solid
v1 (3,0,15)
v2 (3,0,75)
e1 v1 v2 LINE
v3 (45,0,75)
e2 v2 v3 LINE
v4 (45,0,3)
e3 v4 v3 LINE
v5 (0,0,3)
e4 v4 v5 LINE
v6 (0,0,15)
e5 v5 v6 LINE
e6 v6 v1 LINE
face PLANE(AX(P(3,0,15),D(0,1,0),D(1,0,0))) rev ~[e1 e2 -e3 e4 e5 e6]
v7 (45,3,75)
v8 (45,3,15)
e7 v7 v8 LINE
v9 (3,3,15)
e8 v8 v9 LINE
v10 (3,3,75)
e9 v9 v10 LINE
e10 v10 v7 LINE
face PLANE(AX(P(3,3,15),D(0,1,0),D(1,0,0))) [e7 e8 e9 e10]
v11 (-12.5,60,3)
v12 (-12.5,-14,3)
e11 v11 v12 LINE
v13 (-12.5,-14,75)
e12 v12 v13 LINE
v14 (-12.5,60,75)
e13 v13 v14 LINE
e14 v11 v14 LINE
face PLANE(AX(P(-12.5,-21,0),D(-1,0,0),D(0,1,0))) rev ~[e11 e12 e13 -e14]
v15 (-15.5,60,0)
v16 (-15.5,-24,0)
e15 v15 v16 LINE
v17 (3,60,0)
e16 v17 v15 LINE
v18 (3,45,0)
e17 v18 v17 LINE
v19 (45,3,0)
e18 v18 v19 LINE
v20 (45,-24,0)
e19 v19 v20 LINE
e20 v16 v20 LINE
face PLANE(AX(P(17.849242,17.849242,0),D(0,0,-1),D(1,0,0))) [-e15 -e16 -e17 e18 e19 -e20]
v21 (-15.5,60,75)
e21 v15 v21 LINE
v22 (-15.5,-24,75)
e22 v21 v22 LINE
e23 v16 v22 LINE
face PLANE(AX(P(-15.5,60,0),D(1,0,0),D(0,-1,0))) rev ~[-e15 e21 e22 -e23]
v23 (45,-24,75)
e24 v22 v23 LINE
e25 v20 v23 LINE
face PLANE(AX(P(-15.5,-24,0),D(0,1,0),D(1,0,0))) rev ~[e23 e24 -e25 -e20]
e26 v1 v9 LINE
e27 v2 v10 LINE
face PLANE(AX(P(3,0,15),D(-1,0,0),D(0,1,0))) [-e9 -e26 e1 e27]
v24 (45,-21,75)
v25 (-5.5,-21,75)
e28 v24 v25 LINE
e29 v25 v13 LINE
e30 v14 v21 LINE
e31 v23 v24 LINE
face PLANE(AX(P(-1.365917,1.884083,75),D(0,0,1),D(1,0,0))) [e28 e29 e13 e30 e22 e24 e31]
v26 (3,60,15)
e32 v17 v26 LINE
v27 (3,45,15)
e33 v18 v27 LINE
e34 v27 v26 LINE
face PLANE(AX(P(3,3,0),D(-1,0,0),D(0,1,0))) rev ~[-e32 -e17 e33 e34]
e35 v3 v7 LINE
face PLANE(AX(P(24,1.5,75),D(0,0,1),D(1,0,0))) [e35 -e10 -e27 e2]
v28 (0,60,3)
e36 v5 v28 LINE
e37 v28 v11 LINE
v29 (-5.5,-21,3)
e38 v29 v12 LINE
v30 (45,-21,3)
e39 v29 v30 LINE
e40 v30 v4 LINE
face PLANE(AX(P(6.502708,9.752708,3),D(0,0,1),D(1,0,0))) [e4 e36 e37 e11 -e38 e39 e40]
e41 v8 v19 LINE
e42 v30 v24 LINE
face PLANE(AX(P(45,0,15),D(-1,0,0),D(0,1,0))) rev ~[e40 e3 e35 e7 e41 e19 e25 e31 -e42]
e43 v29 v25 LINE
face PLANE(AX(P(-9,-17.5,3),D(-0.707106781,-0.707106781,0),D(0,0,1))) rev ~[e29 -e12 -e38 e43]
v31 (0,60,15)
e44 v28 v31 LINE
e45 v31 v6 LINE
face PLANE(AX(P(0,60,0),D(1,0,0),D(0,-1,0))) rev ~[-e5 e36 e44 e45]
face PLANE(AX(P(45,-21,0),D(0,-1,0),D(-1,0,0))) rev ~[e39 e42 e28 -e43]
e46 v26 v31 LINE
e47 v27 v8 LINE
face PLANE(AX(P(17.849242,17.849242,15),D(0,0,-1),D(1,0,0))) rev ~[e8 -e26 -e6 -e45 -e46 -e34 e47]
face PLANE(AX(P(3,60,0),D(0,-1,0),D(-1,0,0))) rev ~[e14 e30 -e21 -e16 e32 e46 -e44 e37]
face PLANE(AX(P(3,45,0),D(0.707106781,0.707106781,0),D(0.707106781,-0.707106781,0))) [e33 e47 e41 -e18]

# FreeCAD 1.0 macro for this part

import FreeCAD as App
import Part
import Sketcher
from FreeCAD import Vector
Q = App.Units.Quantity


def edges_at(feature, points):
    """Names of the edges that pass closest to the given points."""
    edges = feature.Shape.Edges
    near = lambda p: min(range(len(edges)), key=lambda i: edges[i].distToShape(Part.Vertex(*p))[0])
    return sorted({f"Edge{near(p) + 1}" for p in points})


def add_polygon(sketch, points):
    """Adds a closed chain of lines whose ends are joined by coincident constraints."""
    first, n = sketch.GeometryCount, len(points)
    for a, b in zip(points, points[1:] + points[:1]):
        sketch.addGeometry(Part.LineSegment(App.Vector(*a, 0), App.Vector(*b, 0)), False)
    for i in range(n):
        sketch.addConstraint(Sketcher.Constraint("Coincident", first + i, 2, first + (i + 1) % n, 1))

doc = App.newDocument("Part")
body = doc.addObject("PartDesign::Body", "Body")

sketch1 = doc.addObject("Sketcher::SketchObject", "Sketch")
body.addObject(sketch1)
sketch1.AttachmentSupport = (doc.XY_Plane, [""])
sketch1.MapMode = "FlatFace"
add_polygon(sketch1, [(0, 60), (-12, 60), (-12, -21), (45, -21), (45, 0), (0, 0)])
sketch1.addConstraint([
    Sketcher.Constraint("Horizontal", 0),
    Sketcher.Constraint("Vertical", 1),
    Sketcher.Constraint("Horizontal", 2),
    Sketcher.Constraint("Vertical", 3),
    Sketcher.Constraint("Horizontal", 4),
    Sketcher.Constraint("Vertical", 5),
    Sketcher.Constraint("Coincident", 4, 2, -1, 1),
    Sketcher.Constraint("DistanceX", 4, 2, 4, 1, Q("45 mm")),
    Sketcher.Constraint("DistanceY", 1, 2, 1, 1, Q("81 mm")),
    Sketcher.Constraint("DistanceY", 3, 1, 3, 2, Q("21 mm")),
    Sketcher.Constraint("DistanceX", 0, 2, 0, 1, Q("12.5 mm")),
])
pad1 = doc.addObject("PartDesign::Pad", "Pad")
body.addObject(pad1)
pad1.Profile = sketch1
pad1.Length = 3

sketch2 = doc.addObject("Sketcher::SketchObject", "Sketch001")
body.addObject(sketch2)
sketch2.AttachmentSupport = (doc.XY_Plane, [""])
sketch2.MapMode = "FlatFace"
add_polygon(sketch2, [(-12.5, -21), (-12.5, 60), (-15.5, 60), (-15.5, -24), (45, -24), (45, -21)])
sketch2.addConstraint([
    Sketcher.Constraint("Vertical", 0),
    Sketcher.Constraint("Horizontal", 1),
    Sketcher.Constraint("Vertical", 2),
    Sketcher.Constraint("Horizontal", 3),
    Sketcher.Constraint("Vertical", 4),
    Sketcher.Constraint("Horizontal", 5),
    Sketcher.Constraint("Equal", 1, 4),
    Sketcher.Constraint("DistanceX", 1, 2, 1, 1, Q("3 mm")),
    Sketcher.Constraint("DistanceY", 0, 1, 0, 2, Q("81 mm")),
    Sketcher.Constraint("DistanceX", 3, 1, 3, 2, Q("60.5 mm")),
    Sketcher.Constraint("DistanceY", -1, 1, 0, 2, Q("60 mm")),
    Sketcher.Constraint("DistanceX", -1, 1, 3, 2, Q("45 mm")),
])
pad2 = doc.addObject("PartDesign::Pad", "Pad001")
body.addObject(pad2)
pad2.Profile = sketch2
pad2.Length = 75

sketch3 = doc.addObject("Sketcher::SketchObject", "Sketch002")
body.addObject(sketch3)
sketch3.AttachmentSupport = (doc.XY_Plane, [""])
sketch3.MapMode = "FlatFace"
add_polygon(sketch3, [(3, 60), (0, 60), (0, 0), (45, 0), (45, 3), (3, 3)])
sketch3.addConstraint([
    Sketcher.Constraint("Horizontal", 0),
    Sketcher.Constraint("Vertical", 1),
    Sketcher.Constraint("Horizontal", 2),
    Sketcher.Constraint("Vertical", 3),
    Sketcher.Constraint("Horizontal", 4),
    Sketcher.Constraint("Vertical", 5),
    Sketcher.Constraint("Coincident", 1, 2, -1, 1),
    Sketcher.Constraint("Equal", 0, 3),
    Sketcher.Constraint("DistanceX", 0, 2, 0, 1, Q("3 mm")),
    Sketcher.Constraint("DistanceX", 2, 1, 2, 2, Q("45 mm")),
    Sketcher.Constraint("DistanceY", 1, 2, 1, 1, Q("60 mm")),
])
pad3 = doc.addObject("PartDesign::Pad", "Pad002")
body.addObject(pad3)
pad3.Profile = sketch3
pad3.Length = 15
doc.recompute()

chamfer = doc.addObject("PartDesign::Chamfer", "Chamfer")
body.addObject(chamfer)
chamfer.Base = (pad3, edges_at(pad3, [(-12.5, -21, 39)]))
chamfer.Size = 7

sketch4 = doc.addObject("Sketcher::SketchObject", "Sketch003")
body.addObject(sketch4)
sketch4.AttachmentSupport = (doc.XY_Plane, [""])
sketch4.MapMode = "FlatFace"
sketch4.AttachmentOffset = App.Placement(Vector(0, 0, 15), App.Rotation())
add_polygon(sketch4, [(3, 3), (3, 0), (45, 0), (45, 3)])
sketch4.addConstraint([
    Sketcher.Constraint("Vertical", 0),
    Sketcher.Constraint("Horizontal", 1),
    Sketcher.Constraint("Vertical", 2),
    Sketcher.Constraint("Horizontal", 3),
    Sketcher.Constraint("PointOnObject", 0, 2, -1),
    Sketcher.Constraint("DistanceX", 1, 1, 1, 2, Q("42 mm")),
    Sketcher.Constraint("DistanceY", 0, 2, 0, 1, Q("3 mm")),
    Sketcher.Constraint("DistanceX", -1, 1, 0, 2, Q("3 mm")),
])
pad4 = doc.addObject("PartDesign::Pad", "Pad003")
body.addObject(pad4)
pad4.Profile = sketch4
pad4.Length = 60

sketch5 = doc.addObject("Sketcher::SketchObject", "Sketch004")
body.addObject(sketch5)
sketch5.AttachmentSupport = (doc.XY_Plane, [""])
sketch5.MapMode = "FlatFace"
add_polygon(sketch5, [(3, 45), (45, 3), (3, 3)])
sketch5.addConstraint([
    Sketcher.Constraint("Horizontal", 1),
    Sketcher.Constraint("Vertical", 2),
    Sketcher.Constraint("Equal", 1, 2),
    Sketcher.Constraint("DistanceX", 1, 2, 1, 1, Q("42 mm")),
    Sketcher.Constraint("DistanceX", -1, 1, 0, 2, Q("45 mm")),
    Sketcher.Constraint("DistanceY", -1, 1, 0, 2, Q("3 mm")),
])
pad5 = doc.addObject("PartDesign::Pad", "Pad004")
body.addObject(pad5)
pad5.Profile = sketch5
pad5.Length = 15

doc.recompute()
